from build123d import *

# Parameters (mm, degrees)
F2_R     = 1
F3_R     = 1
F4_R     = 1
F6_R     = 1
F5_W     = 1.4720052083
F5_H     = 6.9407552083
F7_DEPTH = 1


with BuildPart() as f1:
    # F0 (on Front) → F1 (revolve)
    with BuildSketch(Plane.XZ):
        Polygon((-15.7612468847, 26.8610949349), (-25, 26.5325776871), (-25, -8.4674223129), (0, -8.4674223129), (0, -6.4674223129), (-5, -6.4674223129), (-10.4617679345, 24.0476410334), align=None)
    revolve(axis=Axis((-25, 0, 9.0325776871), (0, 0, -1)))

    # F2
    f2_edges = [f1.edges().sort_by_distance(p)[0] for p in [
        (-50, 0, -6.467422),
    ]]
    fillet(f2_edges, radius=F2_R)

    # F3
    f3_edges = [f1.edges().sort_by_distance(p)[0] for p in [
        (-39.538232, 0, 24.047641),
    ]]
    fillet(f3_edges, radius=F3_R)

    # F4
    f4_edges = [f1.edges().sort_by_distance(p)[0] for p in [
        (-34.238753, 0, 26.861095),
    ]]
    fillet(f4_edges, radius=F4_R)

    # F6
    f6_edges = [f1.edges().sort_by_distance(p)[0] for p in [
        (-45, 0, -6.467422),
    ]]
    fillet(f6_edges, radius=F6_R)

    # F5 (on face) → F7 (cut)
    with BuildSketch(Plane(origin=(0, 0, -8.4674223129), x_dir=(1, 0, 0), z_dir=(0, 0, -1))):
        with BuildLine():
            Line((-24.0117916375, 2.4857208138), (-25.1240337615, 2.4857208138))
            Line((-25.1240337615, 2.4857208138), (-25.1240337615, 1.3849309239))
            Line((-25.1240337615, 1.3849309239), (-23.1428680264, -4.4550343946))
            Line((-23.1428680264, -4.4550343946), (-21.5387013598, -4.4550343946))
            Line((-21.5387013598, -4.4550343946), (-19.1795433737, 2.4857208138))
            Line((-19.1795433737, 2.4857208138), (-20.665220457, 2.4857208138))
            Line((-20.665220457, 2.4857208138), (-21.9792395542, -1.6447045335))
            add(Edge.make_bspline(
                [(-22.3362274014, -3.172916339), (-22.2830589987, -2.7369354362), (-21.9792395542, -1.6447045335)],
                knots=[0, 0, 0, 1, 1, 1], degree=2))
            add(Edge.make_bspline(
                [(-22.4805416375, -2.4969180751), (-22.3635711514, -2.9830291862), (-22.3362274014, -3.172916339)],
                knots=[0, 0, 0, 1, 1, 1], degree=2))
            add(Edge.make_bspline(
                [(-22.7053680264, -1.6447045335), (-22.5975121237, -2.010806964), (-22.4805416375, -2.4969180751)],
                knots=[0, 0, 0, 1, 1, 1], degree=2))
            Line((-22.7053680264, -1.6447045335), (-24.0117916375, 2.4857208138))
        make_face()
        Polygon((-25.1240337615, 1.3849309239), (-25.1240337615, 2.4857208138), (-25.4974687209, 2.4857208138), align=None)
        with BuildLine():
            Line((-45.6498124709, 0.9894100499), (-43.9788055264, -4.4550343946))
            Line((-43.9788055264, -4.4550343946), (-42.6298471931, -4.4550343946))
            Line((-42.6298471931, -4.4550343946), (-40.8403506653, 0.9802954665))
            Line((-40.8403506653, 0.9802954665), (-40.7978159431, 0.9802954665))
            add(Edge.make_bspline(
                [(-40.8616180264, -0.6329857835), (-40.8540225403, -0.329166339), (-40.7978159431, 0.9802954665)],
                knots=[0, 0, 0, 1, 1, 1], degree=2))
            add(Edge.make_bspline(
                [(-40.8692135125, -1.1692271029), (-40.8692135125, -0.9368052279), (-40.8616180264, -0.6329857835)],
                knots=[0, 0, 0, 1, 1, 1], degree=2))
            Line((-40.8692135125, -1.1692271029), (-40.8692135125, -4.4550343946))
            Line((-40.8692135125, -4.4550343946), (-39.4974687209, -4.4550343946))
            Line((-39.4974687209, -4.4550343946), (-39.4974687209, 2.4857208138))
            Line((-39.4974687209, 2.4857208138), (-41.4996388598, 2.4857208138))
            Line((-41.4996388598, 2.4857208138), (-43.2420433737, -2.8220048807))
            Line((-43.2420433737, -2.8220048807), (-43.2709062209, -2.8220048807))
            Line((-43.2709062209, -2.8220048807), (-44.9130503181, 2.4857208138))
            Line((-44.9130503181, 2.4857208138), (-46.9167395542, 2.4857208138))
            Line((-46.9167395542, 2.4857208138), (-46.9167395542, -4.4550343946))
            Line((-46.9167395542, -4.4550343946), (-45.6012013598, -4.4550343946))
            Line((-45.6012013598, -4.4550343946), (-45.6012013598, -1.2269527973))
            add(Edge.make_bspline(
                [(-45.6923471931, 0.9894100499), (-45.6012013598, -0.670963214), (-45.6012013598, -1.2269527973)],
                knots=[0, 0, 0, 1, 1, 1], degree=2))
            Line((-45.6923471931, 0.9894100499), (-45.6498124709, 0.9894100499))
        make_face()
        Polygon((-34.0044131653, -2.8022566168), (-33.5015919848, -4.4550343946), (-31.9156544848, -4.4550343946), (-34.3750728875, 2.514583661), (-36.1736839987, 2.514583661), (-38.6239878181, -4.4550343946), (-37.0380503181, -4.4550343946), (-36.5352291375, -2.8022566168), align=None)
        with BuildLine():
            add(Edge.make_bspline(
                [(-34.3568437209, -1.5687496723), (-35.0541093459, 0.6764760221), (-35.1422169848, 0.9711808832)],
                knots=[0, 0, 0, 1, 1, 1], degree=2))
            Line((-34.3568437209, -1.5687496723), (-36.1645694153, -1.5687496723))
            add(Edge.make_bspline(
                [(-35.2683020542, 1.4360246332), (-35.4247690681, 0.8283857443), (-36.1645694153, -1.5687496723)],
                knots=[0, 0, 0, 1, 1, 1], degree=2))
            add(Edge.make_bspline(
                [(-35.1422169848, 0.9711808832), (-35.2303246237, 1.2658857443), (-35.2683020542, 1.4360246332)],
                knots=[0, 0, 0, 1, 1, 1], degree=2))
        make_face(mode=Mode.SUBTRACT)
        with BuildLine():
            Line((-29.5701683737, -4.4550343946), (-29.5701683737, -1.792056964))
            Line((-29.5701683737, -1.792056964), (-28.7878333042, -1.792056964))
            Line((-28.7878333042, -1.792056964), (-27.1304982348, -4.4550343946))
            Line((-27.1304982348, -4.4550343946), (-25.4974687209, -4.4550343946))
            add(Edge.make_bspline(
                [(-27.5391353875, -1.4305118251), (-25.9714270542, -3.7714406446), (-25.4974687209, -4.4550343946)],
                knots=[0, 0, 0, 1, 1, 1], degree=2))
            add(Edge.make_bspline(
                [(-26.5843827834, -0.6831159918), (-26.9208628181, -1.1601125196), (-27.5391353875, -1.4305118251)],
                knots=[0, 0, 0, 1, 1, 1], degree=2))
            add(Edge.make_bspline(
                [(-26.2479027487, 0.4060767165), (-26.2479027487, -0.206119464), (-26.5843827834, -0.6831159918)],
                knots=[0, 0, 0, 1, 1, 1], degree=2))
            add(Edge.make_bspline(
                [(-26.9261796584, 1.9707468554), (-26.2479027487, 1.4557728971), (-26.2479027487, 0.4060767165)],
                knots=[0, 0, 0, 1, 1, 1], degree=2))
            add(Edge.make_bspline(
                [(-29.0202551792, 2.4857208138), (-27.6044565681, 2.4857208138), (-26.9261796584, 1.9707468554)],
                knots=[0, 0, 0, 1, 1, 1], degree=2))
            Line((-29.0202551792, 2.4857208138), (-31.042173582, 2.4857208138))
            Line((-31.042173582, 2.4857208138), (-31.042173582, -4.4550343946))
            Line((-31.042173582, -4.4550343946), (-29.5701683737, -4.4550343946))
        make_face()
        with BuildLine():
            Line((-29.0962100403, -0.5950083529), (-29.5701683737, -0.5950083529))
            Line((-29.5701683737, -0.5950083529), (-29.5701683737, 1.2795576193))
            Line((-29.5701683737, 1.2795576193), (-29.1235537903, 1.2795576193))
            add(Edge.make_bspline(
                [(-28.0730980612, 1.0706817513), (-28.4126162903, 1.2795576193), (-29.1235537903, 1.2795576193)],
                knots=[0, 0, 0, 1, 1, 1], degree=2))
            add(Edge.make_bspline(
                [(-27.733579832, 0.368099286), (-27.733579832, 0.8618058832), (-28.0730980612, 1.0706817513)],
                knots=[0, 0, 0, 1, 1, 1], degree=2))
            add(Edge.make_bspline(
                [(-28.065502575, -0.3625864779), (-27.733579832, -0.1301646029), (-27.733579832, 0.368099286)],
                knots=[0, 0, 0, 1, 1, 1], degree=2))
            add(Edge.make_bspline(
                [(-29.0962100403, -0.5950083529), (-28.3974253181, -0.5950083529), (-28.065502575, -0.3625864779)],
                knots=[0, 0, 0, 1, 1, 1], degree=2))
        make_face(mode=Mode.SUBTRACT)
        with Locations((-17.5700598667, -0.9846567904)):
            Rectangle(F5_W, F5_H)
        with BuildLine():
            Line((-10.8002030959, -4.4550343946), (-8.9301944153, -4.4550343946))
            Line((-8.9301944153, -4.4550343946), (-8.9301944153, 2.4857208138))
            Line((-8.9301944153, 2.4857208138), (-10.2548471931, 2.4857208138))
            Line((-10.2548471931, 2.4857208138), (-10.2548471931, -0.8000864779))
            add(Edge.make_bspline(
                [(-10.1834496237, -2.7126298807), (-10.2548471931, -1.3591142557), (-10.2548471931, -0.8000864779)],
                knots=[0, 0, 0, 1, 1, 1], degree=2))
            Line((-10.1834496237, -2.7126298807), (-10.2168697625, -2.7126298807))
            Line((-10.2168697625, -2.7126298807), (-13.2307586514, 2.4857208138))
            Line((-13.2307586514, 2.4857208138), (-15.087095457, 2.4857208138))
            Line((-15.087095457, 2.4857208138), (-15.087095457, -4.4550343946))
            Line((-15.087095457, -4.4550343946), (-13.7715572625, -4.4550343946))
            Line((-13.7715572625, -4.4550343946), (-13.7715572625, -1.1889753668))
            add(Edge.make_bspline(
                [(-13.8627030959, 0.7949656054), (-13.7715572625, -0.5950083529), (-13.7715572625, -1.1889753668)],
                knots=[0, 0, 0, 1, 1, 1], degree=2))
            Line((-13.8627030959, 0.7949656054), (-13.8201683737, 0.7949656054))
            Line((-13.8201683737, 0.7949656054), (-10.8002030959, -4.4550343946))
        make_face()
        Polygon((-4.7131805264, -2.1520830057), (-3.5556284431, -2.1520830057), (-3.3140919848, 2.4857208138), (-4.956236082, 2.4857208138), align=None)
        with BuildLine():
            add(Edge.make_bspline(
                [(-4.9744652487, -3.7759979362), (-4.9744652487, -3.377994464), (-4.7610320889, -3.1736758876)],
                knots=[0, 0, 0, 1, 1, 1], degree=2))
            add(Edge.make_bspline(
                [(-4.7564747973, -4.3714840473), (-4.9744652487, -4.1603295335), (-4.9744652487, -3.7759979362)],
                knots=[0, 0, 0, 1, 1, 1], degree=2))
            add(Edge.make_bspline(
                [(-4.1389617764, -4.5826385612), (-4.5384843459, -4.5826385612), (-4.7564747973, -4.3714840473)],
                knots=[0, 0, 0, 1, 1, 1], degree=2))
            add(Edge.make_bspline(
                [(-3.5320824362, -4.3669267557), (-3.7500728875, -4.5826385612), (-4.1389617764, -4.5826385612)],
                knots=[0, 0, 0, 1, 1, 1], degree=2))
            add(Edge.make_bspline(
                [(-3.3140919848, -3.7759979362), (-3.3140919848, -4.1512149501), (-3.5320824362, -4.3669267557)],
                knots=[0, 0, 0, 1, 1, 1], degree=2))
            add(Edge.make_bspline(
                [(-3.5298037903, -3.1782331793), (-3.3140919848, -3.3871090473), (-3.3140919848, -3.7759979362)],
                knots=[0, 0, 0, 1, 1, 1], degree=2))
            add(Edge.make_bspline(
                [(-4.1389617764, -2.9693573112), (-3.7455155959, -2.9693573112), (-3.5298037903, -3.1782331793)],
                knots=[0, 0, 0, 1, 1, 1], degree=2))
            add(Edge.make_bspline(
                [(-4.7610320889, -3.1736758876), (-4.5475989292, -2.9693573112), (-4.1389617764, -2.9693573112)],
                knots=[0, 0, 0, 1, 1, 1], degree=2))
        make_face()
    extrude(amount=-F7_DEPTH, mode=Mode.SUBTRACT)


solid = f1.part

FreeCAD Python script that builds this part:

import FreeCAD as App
import Part
import Sketcher
Q = App.Units.Quantity


def edges_at(feature, points):
    """Names of the edges that pass closest to the given points."""
    edges = feature.Shape.Edges
    near = lambda p: min(range(len(edges)), key=lambda i: edges[i].distToShape(Part.Vertex(*p))[0])
    return sorted({f"Edge{near(p) + 1}" for p in points})

doc = App.newDocument("Part")
params = doc.addObject("Spreadsheet::Sheet", "Params")
for row, (alias, value) in enumerate([
    ("sketch1_width", "25 mm"),
    ("sketch1_width2", "5 mm"),
    ("sketch1_height", "35 mm"),
    ("sketch1_height2", "2 mm"),
    ("sketch1_length", "31 mm"),
    ("revolution_angle", "360 deg"),
    ("fillet_radius", "1 mm"),
    ("fillet2_radius", "1 mm"),
    ("fillet3_radius", "1 mm"),
    ("fillet4_radius", "1 mm"),
    ("pocket1_length", "1 mm"),
], start=1):
    params.set(f"A{row}", alias)
    params.set(f"B{row}", "=" + value)
    params.setAlias(f"B{row}", alias)

body = doc.addObject("PartDesign::Body", "Body")

# Sketch on XZ plane
sketch1 = doc.addObject("Sketcher::SketchObject", "Sketch")
body.addObject(sketch1)
sketch1.AttachmentSupport = (doc.XZ_Plane, [""])
sketch1.MapMode = "FlatFace"
sketch1.addGeometry([
    Part.LineSegment(App.Vector(-15.761247, 26.861095, 0), App.Vector(-25, 26.532578, 0)),  # 0
    Part.LineSegment(App.Vector(-25, 26.532578, 0), App.Vector(-25, -8.467422, 0)),  # 1
    Part.LineSegment(App.Vector(-25, -8.467422, 0), App.Vector(0, -8.467422, 0)),  # 2
    Part.LineSegment(App.Vector(0, -8.467422, 0), App.Vector(0, -6.467422, 0)),  # 3
    Part.LineSegment(App.Vector(0, -6.467422, 0), App.Vector(-5, -6.467422, 0)),  # 4
    Part.LineSegment(App.Vector(-5, -6.467422, 0), App.Vector(-10.461768, 24.047641, 0)),  # 5
    Part.LineSegment(App.Vector(-10.461768, 24.047641, 0), App.Vector(-15.761247, 26.861095, 0)),  # 6
], False)
sketch1.addGeometry(Part.LineSegment(App.Vector(-25, 26.861095, 0), App.Vector(-25, -8.467422, 0)), True)  # axis
sketch1.addConstraint([
    Sketcher.Constraint("Coincident", 0, 2, 1, 1),
    Sketcher.Constraint("Coincident", 1, 2, 2, 1),
    Sketcher.Constraint("Coincident", 2, 2, 3, 1),
    Sketcher.Constraint("Coincident", 3, 2, 4, 1),
    Sketcher.Constraint("Coincident", 4, 2, 5, 1),
    Sketcher.Constraint("Coincident", 5, 2, 6, 1),
    Sketcher.Constraint("Coincident", 6, 2, 0, 1),
    Sketcher.Constraint("Vertical", 1),
    Sketcher.Constraint("Horizontal", 2),
    Sketcher.Constraint("Vertical", 3),
    Sketcher.Constraint("Horizontal", 4),
    Sketcher.Constraint("Vertical", 7),
    Sketcher.Constraint("Coincident", 7, 2, 1, 2),
    Sketcher.Constraint("PointOnObject", 2, 2, -2),
    Sketcher.Constraint("Horizontal", 6, 2, 7, 1),
    Sketcher.Constraint("DistanceX", 2, 1, 2, 2, 25.0),
    Sketcher.Constraint("DistanceX", 4, 2, 4, 1, 5.0),
    Sketcher.Constraint("DistanceY", 1, 2, 1, 1, 35.0),
    Sketcher.Constraint("DistanceY", 3, 1, 3, 2, 2.0),
    Sketcher.Constraint("Distance", 5, 31.0),
    Sketcher.Constraint("Distance", 6, 6.0),
    Sketcher.Constraint("DistanceY", 7, 2, 7, 1, 35.328517),
    Sketcher.Constraint("DistanceY", -1, 1, 5, 2, 24.047641),
    Sketcher.Constraint("DistanceX", 6, 2, 5, 2, 5.299479),
])
sketch1.setExpression("Constraints[15]", "Params.sketch1_width")
sketch1.setExpression("Constraints[16]", "Params.sketch1_width2")
sketch1.setExpression("Constraints[17]", "Params.sketch1_height")
sketch1.setExpression("Constraints[18]", "Params.sketch1_height2")
sketch1.setExpression("Constraints[19]", "Params.sketch1_length")
revolution = doc.addObject("PartDesign::Revolution", "Revolution")
body.addObject(revolution)
revolution.Profile = sketch1
revolution.ReferenceAxis = (sketch1, ["Axis0"])
revolution.setExpression("Angle", "Params.revolution_angle")
doc.recompute()

fillet = doc.addObject("PartDesign::Fillet", "Fillet")
body.addObject(fillet)
fillet.Base = (revolution, edges_at(revolution, [(-50, 0, -6.467)]))
fillet.setExpression("Radius", "Params.fillet_radius")
doc.recompute()

fillet2 = doc.addObject("PartDesign::Fillet", "Fillet001")
body.addObject(fillet2)
fillet2.Base = (fillet, edges_at(fillet, [(-39.538, 0, 24.048)]))
fillet2.setExpression("Radius", "Params.fillet2_radius")
doc.recompute()

fillet3 = doc.addObject("PartDesign::Fillet", "Fillet002")
body.addObject(fillet3)
fillet3.Base = (fillet2, edges_at(fillet2, [(-34.239, 0, 26.861)]))
fillet3.setExpression("Radius", "Params.fillet3_radius")
doc.recompute()

fillet4 = doc.addObject("PartDesign::Fillet", "Fillet003")
body.addObject(fillet4)
fillet4.Base = (fillet3, edges_at(fillet3, [(-45, 0, -6.467)]))
fillet4.setExpression("Radius", "Params.fillet4_radius")

# Sketch on XY plane
sketch2 = doc.addObject("Sketcher::SketchObject", "Sketch001")
body.addObject(sketch2)
sketch2.AttachmentSupport = (doc.XY_Plane, [""])
sketch2.MapMode = "FlatFace"
sketch2.AttachmentOffset = App.Placement(App.Vector(0, 0, -8.467422), App.Rotation())
sketch2.addGeometry([
    Part.LineSegment(App.Vector(-24.011792, -2.485721, 0), App.Vector(-25.497469, -2.485721, 0)),  # 0
    Part.LineSegment(App.Vector(-25.497469, -2.485721, 0), App.Vector(-25.124034, -1.384931, 0)),  # 1
    Part.LineSegment(App.Vector(-25.124034, -1.384931, 0), App.Vector(-23.142868, 4.455034, 0)),  # 2
    Part.LineSegment(App.Vector(-23.142868, 4.455034, 0), App.Vector(-21.538701, 4.455034, 0)),  # 3
    Part.LineSegment(App.Vector(-21.538701, 4.455034, 0), App.Vector(-19.179543, -2.485721, 0)),  # 4
    Part.LineSegment(App.Vector(-19.179543, -2.485721, 0), App.Vector(-20.66522, -2.485721, 0)),  # 5
    Part.LineSegment(App.Vector(-20.66522, -2.485721, 0), App.Vector(-21.97924, 1.644705, 0)),  # 6
    Part.BSplineCurve([App.Vector(-22.336227, 3.172916, 0), App.Vector(-22.283059, 2.736935, 0), App.Vector(-21.97924, 1.644705, 0)], [3, 3], [0, 1], False, 2, [1, 1, 1], False),  # 7
    Part.BSplineCurve([App.Vector(-22.480542, 2.496918, 0), App.Vector(-22.363571, 2.983029, 0), App.Vector(-22.336227, 3.172916, 0)], [3, 3], [0, 1], False, 2, [1, 1, 1], False),  # 8
    Part.BSplineCurve([App.Vector(-22.705368, 1.644705, 0), App.Vector(-22.597512, 2.010807, 0), App.Vector(-22.480542, 2.496918, 0)], [3, 3], [0, 1], False, 2, [1, 1, 1], False),  # 9
    Part.LineSegment(App.Vector(-22.705368, 1.644705, 0), App.Vector(-24.011792, -2.485721, 0)),  # 10
    Part.LineSegment(App.Vector(-45.649812, -0.98941, 0), App.Vector(-43.978806, 4.455034, 0)),  # 11
    Part.LineSegment(App.Vector(-43.978806, 4.455034, 0), App.Vector(-42.629847, 4.455034, 0)),  # 12
    Part.LineSegment(App.Vector(-42.629847, 4.455034, 0), App.Vector(-40.840351, -0.980295, 0)),  # 13
    Part.LineSegment(App.Vector(-40.840351, -0.980295, 0), App.Vector(-40.797816, -0.980295, 0)),  # 14
    Part.BSplineCurve([App.Vector(-40.861618, 0.632986, 0), App.Vector(-40.854023, 0.329166, 0), App.Vector(-40.797816, -0.980295, 0)], [3, 3], [0, 1], False, 2, [1, 1, 1], False),  # 15
    Part.BSplineCurve([App.Vector(-40.869214, 1.169227, 0), App.Vector(-40.869214, 0.936805, 0), App.Vector(-40.861618, 0.632986, 0)], [3, 3], [0, 1], False, 2, [1, 1, 1], False),  # 16
    Part.LineSegment(App.Vector(-40.869214, 1.169227, 0), App.Vector(-40.869214, 4.455034, 0)),  # 17
    Part.LineSegment(App.Vector(-40.869214, 4.455034, 0), App.Vector(-39.497469, 4.455034, 0)),  # 18
    Part.LineSegment(App.Vector(-39.497469, 4.455034, 0), App.Vector(-39.497469, -2.485721, 0)),  # 19
    Part.LineSegment(App.Vector(-39.497469, -2.485721, 0), App.Vector(-41.499639, -2.485721, 0)),  # 20
    Part.LineSegment(App.Vector(-41.499639, -2.485721, 0), App.Vector(-43.242043, 2.822005, 0)),  # 21
    Part.LineSegment(App.Vector(-43.242043, 2.822005, 0), App.Vector(-43.270906, 2.822005, 0)),  # 22
    Part.LineSegment(App.Vector(-43.270906, 2.822005, 0), App.Vector(-44.91305, -2.485721, 0)),  # 23
    Part.LineSegment(App.Vector(-44.91305, -2.485721, 0), App.Vector(-46.91674, -2.485721, 0)),  # 24
    Part.LineSegment(App.Vector(-46.91674, -2.485721, 0), App.Vector(-46.91674, 4.455034, 0)),  # 25
    Part.LineSegment(App.Vector(-46.91674, 4.455034, 0), App.Vector(-45.601201, 4.455034, 0)),  # 26
    Part.LineSegment(App.Vector(-45.601201, 4.455034, 0), App.Vector(-45.601201, 1.226953, 0)),  # 27
    Part.BSplineCurve([App.Vector(-45.692347, -0.98941, 0), App.Vector(-45.601201, 0.670963, 0), App.Vector(-45.601201, 1.226953, 0)], [3, 3], [0, 1], False, 2, [1, 1, 1], False),  # 28
    Part.LineSegment(App.Vector(-45.692347, -0.98941, 0), App.Vector(-45.649812, -0.98941, 0)),  # 29
    Part.LineSegment(App.Vector(-34.004413, 2.802257, 0), App.Vector(-33.501592, 4.455034, 0)),  # 30
    Part.LineSegment(App.Vector(-33.501592, 4.455034, 0), App.Vector(-31.915654, 4.455034, 0)),  # 31
    Part.LineSegment(App.Vector(-31.915654, 4.455034, 0), App.Vector(-34.375073, -2.514584, 0)),  # 32
    Part.LineSegment(App.Vector(-34.375073, -2.514584, 0), App.Vector(-36.173684, -2.514584, 0)),  # 33
    Part.LineSegment(App.Vector(-36.173684, -2.514584, 0), App.Vector(-38.623988, 4.455034, 0)),  # 34
    Part.LineSegment(App.Vector(-38.623988, 4.455034, 0), App.Vector(-37.03805, 4.455034, 0)),  # 35
    Part.LineSegment(App.Vector(-37.03805, 4.455034, 0), App.Vector(-36.535229, 2.802257, 0)),  # 36
    Part.LineSegment(App.Vector(-36.535229, 2.802257, 0), App.Vector(-34.004413, 2.802257, 0)),  # 37
    Part.BSplineCurve([App.Vector(-34.356844, 1.56875, 0), App.Vector(-35.054109, -0.676476, 0), App.Vector(-35.230325, -1.265886, 0), App.Vector(-35.268302, -1.436025, 0)], [3, 1, 3], [0, 1, 2], False, 2, [1, 1, 1, 1], False),  # 38
    Part.LineSegment(App.Vector(-34.356844, 1.56875, 0), App.Vector(-36.164569, 1.56875, 0)),  # 39
    Part.BSplineCurve([App.Vector(-35.268302, -1.436025, 0), App.Vector(-35.424769, -0.828386, 0), App.Vector(-36.164569, 1.56875, 0)], [3, 3], [0, 1], False, 2, [1, 1, 1], False),  # 40
    Part.LineSegment(App.Vector(-29.570168, 4.455034, 0), App.Vector(-29.570168, 1.792057, 0)),  # 41
    Part.LineSegment(App.Vector(-29.570168, 1.792057, 0), App.Vector(-28.787833, 1.792057, 0)),  # 42
    Part.LineSegment(App.Vector(-28.787833, 1.792057, 0), App.Vector(-27.130498, 4.455034, 0)),  # 43
    Part.LineSegment(App.Vector(-27.130498, 4.455034, 0), App.Vector(-25.497469, 4.455034, 0)),  # 44
    Part.BSplineCurve([App.Vector(-27.539135, 1.430512, 0), App.Vector(-25.971427, 3.771441, 0), App.Vector(-25.497469, 4.455034, 0)], [3, 3], [0, 1], False, 2, [1, 1, 1], False),  # 45
    Part.BSplineCurve([App.Vector(-26.92618, -1.970747, 0), App.Vector(-26.247903, -1.455773, 0), App.Vector(-26.247903, 0.206119, 0), App.Vector(-26.920863, 1.160113, 0), App.Vector(-27.539135, 1.430512, 0)], [3, 1, 1, 3], [0, 1, 1.583212735, 2.16642547], False, 2, [1, 1, 1, 1, 1], False),  # 46
    Part.BSplineCurve([App.Vector(-29.020255, -2.485721, 0), App.Vector(-27.604457, -2.485721, 0), App.Vector(-26.92618, -1.970747, 0)], [3, 3], [0, 1], False, 2, [1, 1, 1], False),  # 47
    Part.LineSegment(App.Vector(-29.020255, -2.485721, 0), App.Vector(-31.042174, -2.485721, 0)),  # 48
    Part.LineSegment(App.Vector(-31.042174, -2.485721, 0), App.Vector(-31.042174, 4.455034, 0)),  # 49
    Part.LineSegment(App.Vector(-31.042174, 4.455034, 0), App.Vector(-29.570168, 4.455034, 0)),  # 50
    Part.BSplineCurve([App.Vector(-29.09621, 0.595008, 0), App.Vector(-28.397425, 0.595008, 0), App.Vector(-28.065503, 0.362586, 0)], [3, 3], [0, 1], False, 2, [1, 1, 1], False),  # 51
    Part.LineSegment(App.Vector(-29.09621, 0.595008, 0), App.Vector(-29.570168, 0.595008, 0)),  # 52
    Part.LineSegment(App.Vector(-29.570168, 0.595008, 0), App.Vector(-29.570168, -1.279558, 0)),  # 53
    Part.LineSegment(App.Vector(-29.570168, -1.279558, 0), App.Vector(-29.123554, -1.279558, 0)),  # 54
    Part.BSplineCurve([App.Vector(-28.073098, -1.070682, 0), App.Vector(-28.412616, -1.279558, 0), App.Vector(-29.123554, -1.279558, 0)], [3, 3], [0, 1], False, 2, [1, 1, 1], False),  # 55
    Part.BSplineCurve([App.Vector(-28.065503, 0.362586, 0), App.Vector(-27.73358, 0.130165, 0), App.Vector(-27.73358, -0.861806, 0), App.Vector(-28.073098, -1.070682, 0)], [3, 1, 3], [0, 1, 1.990853658], False, 2, [1, 1, 1, 1], False),  # 56
    Part.LineSegment(App.Vector(-18.306062, -2.485721, 0), App.Vector(-18.306062, 4.455034, 0)),  # 57
    Part.LineSegment(App.Vector(-18.306062, 4.455034, 0), App.Vector(-16.834057, 4.455034, 0)),  # 58
    Part.LineSegment(App.Vector(-16.834057, 4.455034, 0), App.Vector(-16.834057, -2.485721, 0)),  # 59
    Part.LineSegment(App.Vector(-16.834057, -2.485721, 0), App.Vector(-18.306062, -2.485721, 0)),  # 60
    Part.LineSegment(App.Vector(-10.800203, 4.455034, 0), App.Vector(-8.930194, 4.455034, 0)),  # 61
    Part.LineSegment(App.Vector(-8.930194, 4.455034, 0), App.Vector(-8.930194, -2.485721, 0)),  # 62
    Part.LineSegment(App.Vector(-8.930194, -2.485721, 0), App.Vector(-10.254847, -2.485721, 0)),  # 63
    Part.LineSegment(App.Vector(-10.254847, -2.485721, 0), App.Vector(-10.254847, 0.800086, 0)),  # 64
    Part.BSplineCurve([App.Vector(-10.18345, 2.71263, 0), App.Vector(-10.254847, 1.359114, 0), App.Vector(-10.254847, 0.800086, 0)], [3, 3], [0, 1], False, 2, [1, 1, 1], False),  # 65
    Part.LineSegment(App.Vector(-10.18345, 2.71263, 0), App.Vector(-10.21687, 2.71263, 0)),  # 66
    Part.LineSegment(App.Vector(-10.21687, 2.71263, 0), App.Vector(-13.230759, -2.485721, 0)),  # 67
    Part.LineSegment(App.Vector(-13.230759, -2.485721, 0), App.Vector(-15.087095, -2.485721, 0)),  # 68
    Part.LineSegment(App.Vector(-15.087095, -2.485721, 0), App.Vector(-15.087095, 4.455034, 0)),  # 69
    Part.LineSegment(App.Vector(-15.087095, 4.455034, 0), App.Vector(-13.771557, 4.455034, 0)),  # 70
    Part.LineSegment(App.Vector(-13.771557, 4.455034, 0), App.Vector(-13.771557, 1.188975, 0)),  # 71
    Part.BSplineCurve([App.Vector(-13.862703, -0.794966, 0), App.Vector(-13.771557, 0.595008, 0), App.Vector(-13.771557, 1.188975, 0)], [3, 3], [0, 1], False, 2, [1, 1, 1], False),  # 72
    Part.LineSegment(App.Vector(-13.862703, -0.794966, 0), App.Vector(-13.820168, -0.794966, 0)),  # 73
    Part.LineSegment(App.Vector(-13.820168, -0.794966, 0), App.Vector(-10.800203, 4.455034, 0)),  # 74
    Part.LineSegment(App.Vector(-4.713181, 2.152083, 0), App.Vector(-3.555628, 2.152083, 0)),  # 75
    Part.LineSegment(App.Vector(-3.555628, 2.152083, 0), App.Vector(-3.314092, -2.485721, 0)),  # 76
    Part.LineSegment(App.Vector(-3.314092, -2.485721, 0), App.Vector(-4.956236, -2.485721, 0)),  # 77
    Part.LineSegment(App.Vector(-4.956236, -2.485721, 0), App.Vector(-4.713181, 2.152083, 0)),  # 78
    Part.BSplineCurve([App.Vector(-4.756475, 4.371484, 0), App.Vector(-4.974465, 4.16033, 0), App.Vector(-4.974465, 3.377994, 0), App.Vector(-4.761032, 3.173676, 0)], [3, 1, 3], [0, 1, 2.035573122], False, 2, [1, 1, 1, 1], False),  # 79
    Part.BSplineCurve([App.Vector(-3.532082, 4.366927, 0), App.Vector(-3.750073, 4.582639, 0), App.Vector(-4.538484, 4.582639, 0), App.Vector(-4.756475, 4.371484, 0)], [3, 1, 3], [0, 1, 2.02734375], False, 2, [1, 1, 1, 1], False),  # 80
    Part.BSplineCurve([App.Vector(-3.529804, 3.178233, 0), App.Vector(-3.314092, 3.387109, 0), App.Vector(-3.314092, 4.151215, 0), App.Vector(-3.532082, 4.366927, 0)], [3, 1, 3], [0, 1, 1.96484375], False, 2, [1, 1, 1, 1], False),  # 81
    Part.BSplineCurve([App.Vector(-4.761032, 3.173676, 0), App.Vector(-4.547599, 2.969357, 0), App.Vector(-3.745516, 2.969357, 0), App.Vector(-3.529804, 3.178233, 0)], [3, 1, 3], [0, 1, 1.962825279], False, 2, [1, 1, 1, 1], False),  # 82
], False)
sketch2.addConstraint([
    Sketcher.Constraint("Block", 7),
    Sketcher.Constraint("Block", 8),
    Sketcher.Constraint("Block", 9),
    Sketcher.Constraint("Block", 15),
    Sketcher.Constraint("Block", 16),
    Sketcher.Constraint("Block", 28),
    Sketcher.Constraint("Block", 38),
    Sketcher.Constraint("Block", 40),
    Sketcher.Constraint("Block", 45),
    Sketcher.Constraint("Block", 46),
    Sketcher.Constraint("Block", 47),
    Sketcher.Constraint("Block", 51),
    Sketcher.Constraint("Block", 55),
    Sketcher.Constraint("Block", 56),
    Sketcher.Constraint("Block", 65),
    Sketcher.Constraint("Block", 72),
    Sketcher.Constraint("Block", 79),
    Sketcher.Constraint("Block", 80),
    Sketcher.Constraint("Block", 81),
    Sketcher.Constraint("Block", 82),
    Sketcher.Constraint("Coincident", 0, 2, 1, 1),
    Sketcher.Constraint("Coincident", 1, 2, 2, 1),
    Sketcher.Constraint("Coincident", 2, 2, 3, 1),
    Sketcher.Constraint("Coincident", 3, 2, 4, 1),
    Sketcher.Constraint("Coincident", 4, 2, 5, 1),
    Sketcher.Constraint("Coincident", 5, 2, 6, 1),
    Sketcher.Constraint("Coincident", 6, 2, 7, 2),
    Sketcher.Constraint("Coincident", 9, 1, 10, 1),
    Sketcher.Constraint("Coincident", 10, 2, 0, 1),
    Sketcher.Constraint("Coincident", 11, 2, 12, 1),
    Sketcher.Constraint("Coincident", 12, 2, 13, 1),
    Sketcher.Constraint("Coincident", 13, 2, 14, 1),
    Sketcher.Constraint("Coincident", 14, 2, 15, 2),
    Sketcher.Constraint("Coincident", 16, 1, 17, 1),
    Sketcher.Constraint("Coincident", 17, 2, 18, 1),
    Sketcher.Constraint("Coincident", 18, 2, 19, 1),
    Sketcher.Constraint("Coincident", 19, 2, 20, 1),
    Sketcher.Constraint("Coincident", 20, 2, 21, 1),
    Sketcher.Constraint("Coincident", 21, 2, 22, 1),
    Sketcher.Constraint("Coincident", 22, 2, 23, 1),
    Sketcher.Constraint("Coincident", 23, 2, 24, 1),
    Sketcher.Constraint("Coincident", 24, 2, 25, 1),
    Sketcher.Constraint("Coincident", 25, 2, 26, 1),
    Sketcher.Constraint("Coincident", 26, 2, 27, 1),
    Sketcher.Constraint("Coincident", 27, 2, 28, 2),
    Sketcher.Constraint("Coincident", 28, 1, 29, 1),
    Sketcher.Constraint("Coincident", 29, 2, 11, 1),
    Sketcher.Constraint("Coincident", 30, 2, 31, 1),
    Sketcher.Constraint("Coincident", 31, 2, 32, 1),
    Sketcher.Constraint("Coincident", 32, 2, 33, 1),
    Sketcher.Constraint("Coincident", 33, 2, 34, 1),
    Sketcher.Constraint("Coincident", 34, 2, 35, 1),
    Sketcher.Constraint("Coincident", 35, 2, 36, 1),
    Sketcher.Constraint("Coincident", 36, 2, 37, 1),
    Sketcher.Constraint("Coincident", 37, 2, 30, 1),
    Sketcher.Constraint("Coincident", 38, 1, 39, 1),
    Sketcher.Constraint("Coincident", 39, 2, 40, 2),
    Sketcher.Constraint("Coincident", 41, 2, 42, 1),
    Sketcher.Constraint("Coincident", 42, 2, 43, 1),
    Sketcher.Constraint("Coincident", 43, 2, 44, 1),
    Sketcher.Constraint("Coincident", 44, 2, 45, 2),
    Sketcher.Constraint("Coincident", 47, 1, 48, 1),
    Sketcher.Constraint("Coincident", 48, 2, 49, 1),
    Sketcher.Constraint("Coincident", 49, 2, 50, 1),
    Sketcher.Constraint("Coincident", 50, 2, 41, 1),
    Sketcher.Constraint("Coincident", 51, 1, 52, 1),
    Sketcher.Constraint("Coincident", 52, 2, 53, 1),
    Sketcher.Constraint("Coincident", 53, 2, 54, 1),
    Sketcher.Constraint("Coincident", 54, 2, 55, 2),
    Sketcher.Constraint("Coincident", 57, 2, 58, 1),
    Sketcher.Constraint("Coincident", 58, 2, 59, 1),
    Sketcher.Constraint("Coincident", 59, 2, 60, 1),
    Sketcher.Constraint("Coincident", 60, 2, 57, 1),
    Sketcher.Constraint("Coincident", 61, 2, 62, 1),
    Sketcher.Constraint("Coincident", 62, 2, 63, 1),
    Sketcher.Constraint("Coincident", 63, 2, 64, 1),
    Sketcher.Constraint("Coincident", 64, 2, 65, 2),
    Sketcher.Constraint("Coincident", 65, 1, 66, 1),
    Sketcher.Constraint("Coincident", 66, 2, 67, 1),
    Sketcher.Constraint("Coincident", 67, 2, 68, 1),
    Sketcher.Constraint("Coincident", 68, 2, 69, 1),
    Sketcher.Constraint("Coincident", 69, 2, 70, 1),
    Sketcher.Constraint("Coincident", 70, 2, 71, 1),
    Sketcher.Constraint("Coincident", 71, 2, 72, 2),
    Sketcher.Constraint("Coincident", 72, 1, 73, 1),
    Sketcher.Constraint("Coincident", 73, 2, 74, 1),
    Sketcher.Constraint("Coincident", 74, 2, 61, 1),
    Sketcher.Constraint("Coincident", 75, 2, 76, 1),
    Sketcher.Constraint("Coincident", 76, 2, 77, 1),
    Sketcher.Constraint("Coincident", 77, 2, 78, 1),
    Sketcher.Constraint("Coincident", 78, 2, 75, 1),
    Sketcher.Constraint("Horizontal", 0),
    Sketcher.Constraint("Horizontal", 3),
    Sketcher.Constraint("Horizontal", 5),
    Sketcher.Constraint("Horizontal", 12),
    Sketcher.Constraint("Horizontal", 14),
    Sketcher.Constraint("Vertical", 17),
    Sketcher.Constraint("Horizontal", 18),
    Sketcher.Constraint("Vertical", 19),
    Sketcher.Constraint("Horizontal", 20),
    Sketcher.Constraint("Horizontal", 22),
    Sketcher.Constraint("Horizontal", 24),
    Sketcher.Constraint("Vertical", 25),
    Sketcher.Constraint("Horizontal", 26),
    Sketcher.Constraint("Vertical", 27),
    Sketcher.Constraint("Horizontal", 29),
    Sketcher.Constraint("Horizontal", 31),
    Sketcher.Constraint("Horizontal", 33),
    Sketcher.Constraint("Horizontal", 35),
    Sketcher.Constraint("Horizontal", 37),
    Sketcher.Constraint("Vertical", 41),
    Sketcher.Constraint("Horizontal", 42),
    Sketcher.Constraint("Horizontal", 44),
    Sketcher.Constraint("Horizontal", 48),
    Sketcher.Constraint("Vertical", 49),
    Sketcher.Constraint("Horizontal", 50),
    Sketcher.Constraint("Horizontal", 52),
    Sketcher.Constraint("Vertical", 53),
    Sketcher.Constraint("Horizontal", 54),
    Sketcher.Constraint("Vertical", 57),
    Sketcher.Constraint("Horizontal", 58),
    Sketcher.Constraint("Vertical", 59),
    Sketcher.Constraint("Horizontal", 60),
    Sketcher.Constraint("Horizontal", 61),
    Sketcher.Constraint("Vertical", 62),
    Sketcher.Constraint("Horizontal", 63),
    Sketcher.Constraint("Vertical", 64),
    Sketcher.Constraint("Horizontal", 66),
    Sketcher.Constraint("Horizontal", 68),
    Sketcher.Constraint("Vertical", 69),
    Sketcher.Constraint("Horizontal", 70),
    Sketcher.Constraint("Vertical", 71),
    Sketcher.Constraint("Horizontal", 73),
    Sketcher.Constraint("Horizontal", 75),
    Sketcher.Constraint("Horizontal", 77),
    Sketcher.Constraint("Parallel", 1, 2),
    Sketcher.Constraint("Horizontal", 0, 2, 4, 2),
    Sketcher.Constraint("Horizontal", 3, 2, 11, 2),
    Sketcher.Constraint("Horizontal", 12, 2, 17, 2),
    Sketcher.Constraint("Horizontal", 10, 2, 19, 2),
    Sketcher.Constraint("Horizontal", 20, 2, 23, 2),
    Sketcher.Constraint("Horizontal", 18, 2, 25, 2),
    Sketcher.Constraint("Horizontal", 26, 2, 30, 2),
    Sketcher.Constraint("Horizontal", 31, 2, 34, 2),
    Sketcher.Constraint("Horizontal", 35, 2, 43, 2),
    Sketcher.Constraint("Horizontal", 24, 2, 48, 2),
    Sketcher.Constraint("Horizontal", 44, 2, 49, 2),
    Sketcher.Constraint("Horizontal", 50, 2, 57, 2),
    Sketcher.Constraint("Horizontal", 48, 2, 59, 2),
    Sketcher.Constraint("Horizontal", 58, 2, 61, 2),
    Sketcher.Constraint("Horizontal", 60, 2, 62, 2),
    Sketcher.Constraint("Horizontal", 63, 2, 67, 2),
    Sketcher.Constraint("Horizontal", 61, 2, 69, 2),
    Sketcher.Constraint("Horizontal", 68, 2, 76, 2),
    Sketcher.Constraint("Vertical", 0, 2, 44, 2),
    Sketcher.Constraint("Vertical", 50, 2, 52, 2),
    Sketcher.Constraint("Equal", 0, 5),
    Sketcher.Constraint("Equal", 14, 29),
    Sketcher.Constraint("Equal", 31, 35),
    Sketcher.Constraint("Equal", 50, 58),
    Sketcher.Constraint("Equal", 26, 70),
    Sketcher.Constraint("Equal", 29, 73),
    Sketcher.Constraint("Equal", 30, 36),
    Sketcher.Constraint("Angle", 78, Q("87.000018 deg")),
    Sketcher.Constraint("Distance", 34, 7.387798),
    Sketcher.Constraint("DistanceX", 12, 1, 12, 2, 1.348958),
    Sketcher.Constraint("DistanceX", 20, 2, 20, 1, 2.00217),
    Sketcher.Constraint("DistanceX", 24, 2, 24, 1, 2.003689),
    Sketcher.Constraint("DistanceX", 26, 1, 26, 2, 1.315538),
    Sketcher.Constraint("DistanceX", 33, 2, 33, 1, 1.798611),
    Sketcher.Constraint("DistanceX", 44, 1, 44, 2, 1.63303),
    Sketcher.Constraint("DistanceX", 48, 2, 48, 1, 2.021918),
    Sketcher.Constraint("DistanceX", 52, 2, 52, 1, 0.473958),
    Sketcher.Constraint("DistanceX", 61, 1, 61, 2, 1.870009),
    Sketcher.Constraint("DistanceX", 66, 2, 66, 1, 0.03342),
    Sketcher.Constraint("DistanceX", 3, 2, -1, 1, 21.538701),
    Sketcher.Constraint("Distance", 23, 5.555951),
    Sketcher.Constraint("Distance", 30, 1.727572),
    Sketcher.Constraint("Distance", 43, 3.136592),
    Sketcher.Constraint("Distance", 67, 6.008858),
    Sketcher.Constraint("Distance", 76, 4.644089),
    Sketcher.Constraint("Distance", 78, 4.644168),
    Sketcher.Constraint("DistanceX", 0, 2, 0, 1, 1.485677),
    Sketcher.Constraint("DistanceX", 3, 1, 3, 2, 1.604167),
    Sketcher.Constraint("DistanceX", 14, 1, 14, 2, 0.042535),
    Sketcher.Constraint("DistanceX", 18, 1, 18, 2, 1.371745),
    Sketcher.Constraint("DistanceX", 22, 2, 22, 1, 0.028863),
    Sketcher.Constraint("DistanceX", 31, 1, 31, 2, 1.585937),
    Sketcher.Constraint("DistanceX", 37, 1, 37, 2, 2.530816),
    Sketcher.Constraint("DistanceX", 42, 1, 42, 2, 0.782335),
    Sketcher.Constraint("DistanceX", 63, 2, 63, 1, 1.324653),
    Sketcher.Constraint("DistanceX", 75, 1, 75, 2, 1.157552),
    Sketcher.Constraint("DistanceY", 1, 2, -1, 1, 1.384931),
    Sketcher.Constraint("DistanceX", 5, 2, -1, 1, 20.66522),
    Sketcher.Constraint("DistanceX", 30, 2, -1, 1, 33.501592),
    Sketcher.Constraint("DistanceX", 35, 2, -1, 1, 37.03805),
    Sketcher.Constraint("DistanceX", 75, 2, -1, 1, 3.555628),
    Sketcher.Constraint("Distance", 11, 5.695107),
    Sketcher.Constraint("Distance", 21, 5.586405),
    Sketcher.Constraint("Distance", 32, 7.390826),
    Sketcher.Constraint("DistanceX", 57, 2, -1, 1, 18.306062),
])
pocket1 = doc.addObject("PartDesign::Pocket", "Pocket")
body.addObject(pocket1)
pocket1.Profile = sketch2
pocket1.setExpression("Length", "Params.pocket1_length")
pocket1.Reversed = True

doc.recompute()
